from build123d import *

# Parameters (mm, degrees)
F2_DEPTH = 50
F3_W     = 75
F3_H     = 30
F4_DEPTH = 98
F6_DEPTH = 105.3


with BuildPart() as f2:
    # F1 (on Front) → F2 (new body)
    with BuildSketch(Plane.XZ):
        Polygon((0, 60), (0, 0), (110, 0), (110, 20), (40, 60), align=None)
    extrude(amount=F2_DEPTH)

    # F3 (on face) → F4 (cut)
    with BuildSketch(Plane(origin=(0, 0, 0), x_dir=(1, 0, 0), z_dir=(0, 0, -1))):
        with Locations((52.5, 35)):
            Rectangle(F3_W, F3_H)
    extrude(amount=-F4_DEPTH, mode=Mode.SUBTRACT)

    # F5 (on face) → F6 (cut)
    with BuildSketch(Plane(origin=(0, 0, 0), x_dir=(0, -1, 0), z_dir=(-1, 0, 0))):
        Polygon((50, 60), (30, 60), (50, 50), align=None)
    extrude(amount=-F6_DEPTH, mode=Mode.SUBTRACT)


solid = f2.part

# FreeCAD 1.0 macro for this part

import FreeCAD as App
import Part
import Sketcher
Q = App.Units.Quantity


def add_polygon(sketch, points):
    """Adds a closed chain of lines whose ends are joined by coincident constraints."""
    first, n = sketch.GeometryCount, len(points)
    for a, b in zip(points, points[1:] + points[:1]):
        sketch.addGeometry(Part.LineSegment(App.Vector(*a, 0), App.Vector(*b, 0)), False)
    for i in range(n):
        sketch.addConstraint(Sketcher.Constraint("Coincident", first + i, 2, first + (i + 1) % n, 1))

doc = App.newDocument("Part")
params = doc.addObject("Spreadsheet::Sheet", "Params")
for row, (alias, value) in enumerate([
    ("sketch1_width", "110 mm"),
    ("sketch1_width2", "40 mm"),
    ("sketch1_height", "60 mm"),
    ("sketch1_height2", "20 mm"),
    ("pad1_length", "50 mm"),
    ("sketch2_width", "75 mm"),
    ("sketch2_height", "30 mm"),
    ("pocket1_length", "98 mm"),
    ("sketch3_width", "20 mm"),
    ("sketch3_height", "10 mm"),
    ("pocket2_length", "105.3 mm"),
], start=1):
    params.set(f"A{row}", alias)
    params.set(f"B{row}", "=" + value)
    params.setAlias(f"B{row}", alias)

body = doc.addObject("PartDesign::Body", "Body")

sketch1 = body.newObject("Sketcher::SketchObject", "Sketch")
sketch1.AttachmentSupport = (doc.getObject("XZ_Plane"), [""])
sketch1.MapMode = "FlatFace"
add_polygon(sketch1, [(0, 60), (0, 0), (110, 0), (110, 20), (40, 60)])
sketch1.addConstraint([
    Sketcher.Constraint("Vertical", 0),
    Sketcher.Constraint("Horizontal", 1),
    Sketcher.Constraint("Vertical", 2),
    Sketcher.Constraint("Horizontal", 4),
    Sketcher.Constraint("Coincident", 0, 2, -1, 1),
    Sketcher.Constraint("DistanceX", 1, 1, 1, 2, Q("110 mm")),
    Sketcher.Constraint("DistanceX", 4, 2, 4, 1, Q("40 mm")),
    Sketcher.Constraint("DistanceY", 0, 2, 0, 1, Q("60 mm")),
    Sketcher.Constraint("DistanceY", 2, 1, 2, 2, Q("20 mm")),
])
sketch1.setExpression("Constraints[10]", "Params.sketch1_width")
sketch1.setExpression("Constraints[11]", "Params.sketch1_width2")
sketch1.setExpression("Constraints[12]", "Params.sketch1_height")
sketch1.setExpression("Constraints[13]", "Params.sketch1_height2")
pad1 = body.newObject("PartDesign::Pad", "Pad")
pad1.Profile = sketch1
pad1.setExpression("Length", "Params.pad1_length")

sketch2 = body.newObject("Sketcher::SketchObject", "Sketch001")
sketch2.AttachmentSupport = (doc.getObject("XY_Plane"), [""])
sketch2.MapMode = "FlatFace"
add_polygon(sketch2, [(15, -50), (15, -20), (90, -20), (90, -50)])
sketch2.addConstraint([
    Sketcher.Constraint("Vertical", 0),
    Sketcher.Constraint("Horizontal", 1),
    Sketcher.Constraint("Vertical", 2),
    Sketcher.Constraint("Horizontal", 3),
    Sketcher.Constraint("DistanceX", 1, 1, 1, 2, Q("75 mm")),
    Sketcher.Constraint("DistanceY", 0, 1, 0, 2, Q("30 mm")),
    Sketcher.Constraint("DistanceX", -1, 1, 0, 2, Q("15 mm")),
    Sketcher.Constraint("DistanceY", 0, 2, -1, 1, Q("20 mm")),
])
sketch2.setExpression("Constraints[8]", "Params.sketch2_width")
sketch2.setExpression("Constraints[9]", "Params.sketch2_height")
pocket1 = body.newObject("PartDesign::Pocket", "Pocket")
pocket1.Profile = sketch2
pocket1.setExpression("Length", "Params.pocket1_length")
pocket1.Reversed = True

sketch3 = body.newObject("Sketcher::SketchObject", "Sketch002")
sketch3.AttachmentSupport = (doc.getObject("YZ_Plane"), [""])
sketch3.MapMode = "FlatFace"
add_polygon(sketch3, [(-50, 60), (-30, 60), (-50, 50)])
sketch3.addConstraint([
    Sketcher.Constraint("Horizontal", 0),
    Sketcher.Constraint("Vertical", 2),
    Sketcher.Constraint("DistanceX", 0, 1, 0, 2, Q("20 mm")),
    Sketcher.Constraint("DistanceY", 2, 1, 2, 2, Q("10 mm")),
    Sketcher.Constraint("DistanceX", 0, 2, -1, 1, Q("30 mm")),
    Sketcher.Constraint("DistanceY", -1, 1, 0, 2, Q("60 mm")),
])
sketch3.setExpression("Constraints[5]", "Params.sketch3_width")
sketch3.setExpression("Constraints[6]", "Params.sketch3_height")
pocket2 = body.newObject("PartDesign::Pocket", "Pocket001")
pocket2.Profile = sketch3
pocket2.setExpression("Length", "Params.pocket2_length")
pocket2.Reversed = True

doc.recompute()
